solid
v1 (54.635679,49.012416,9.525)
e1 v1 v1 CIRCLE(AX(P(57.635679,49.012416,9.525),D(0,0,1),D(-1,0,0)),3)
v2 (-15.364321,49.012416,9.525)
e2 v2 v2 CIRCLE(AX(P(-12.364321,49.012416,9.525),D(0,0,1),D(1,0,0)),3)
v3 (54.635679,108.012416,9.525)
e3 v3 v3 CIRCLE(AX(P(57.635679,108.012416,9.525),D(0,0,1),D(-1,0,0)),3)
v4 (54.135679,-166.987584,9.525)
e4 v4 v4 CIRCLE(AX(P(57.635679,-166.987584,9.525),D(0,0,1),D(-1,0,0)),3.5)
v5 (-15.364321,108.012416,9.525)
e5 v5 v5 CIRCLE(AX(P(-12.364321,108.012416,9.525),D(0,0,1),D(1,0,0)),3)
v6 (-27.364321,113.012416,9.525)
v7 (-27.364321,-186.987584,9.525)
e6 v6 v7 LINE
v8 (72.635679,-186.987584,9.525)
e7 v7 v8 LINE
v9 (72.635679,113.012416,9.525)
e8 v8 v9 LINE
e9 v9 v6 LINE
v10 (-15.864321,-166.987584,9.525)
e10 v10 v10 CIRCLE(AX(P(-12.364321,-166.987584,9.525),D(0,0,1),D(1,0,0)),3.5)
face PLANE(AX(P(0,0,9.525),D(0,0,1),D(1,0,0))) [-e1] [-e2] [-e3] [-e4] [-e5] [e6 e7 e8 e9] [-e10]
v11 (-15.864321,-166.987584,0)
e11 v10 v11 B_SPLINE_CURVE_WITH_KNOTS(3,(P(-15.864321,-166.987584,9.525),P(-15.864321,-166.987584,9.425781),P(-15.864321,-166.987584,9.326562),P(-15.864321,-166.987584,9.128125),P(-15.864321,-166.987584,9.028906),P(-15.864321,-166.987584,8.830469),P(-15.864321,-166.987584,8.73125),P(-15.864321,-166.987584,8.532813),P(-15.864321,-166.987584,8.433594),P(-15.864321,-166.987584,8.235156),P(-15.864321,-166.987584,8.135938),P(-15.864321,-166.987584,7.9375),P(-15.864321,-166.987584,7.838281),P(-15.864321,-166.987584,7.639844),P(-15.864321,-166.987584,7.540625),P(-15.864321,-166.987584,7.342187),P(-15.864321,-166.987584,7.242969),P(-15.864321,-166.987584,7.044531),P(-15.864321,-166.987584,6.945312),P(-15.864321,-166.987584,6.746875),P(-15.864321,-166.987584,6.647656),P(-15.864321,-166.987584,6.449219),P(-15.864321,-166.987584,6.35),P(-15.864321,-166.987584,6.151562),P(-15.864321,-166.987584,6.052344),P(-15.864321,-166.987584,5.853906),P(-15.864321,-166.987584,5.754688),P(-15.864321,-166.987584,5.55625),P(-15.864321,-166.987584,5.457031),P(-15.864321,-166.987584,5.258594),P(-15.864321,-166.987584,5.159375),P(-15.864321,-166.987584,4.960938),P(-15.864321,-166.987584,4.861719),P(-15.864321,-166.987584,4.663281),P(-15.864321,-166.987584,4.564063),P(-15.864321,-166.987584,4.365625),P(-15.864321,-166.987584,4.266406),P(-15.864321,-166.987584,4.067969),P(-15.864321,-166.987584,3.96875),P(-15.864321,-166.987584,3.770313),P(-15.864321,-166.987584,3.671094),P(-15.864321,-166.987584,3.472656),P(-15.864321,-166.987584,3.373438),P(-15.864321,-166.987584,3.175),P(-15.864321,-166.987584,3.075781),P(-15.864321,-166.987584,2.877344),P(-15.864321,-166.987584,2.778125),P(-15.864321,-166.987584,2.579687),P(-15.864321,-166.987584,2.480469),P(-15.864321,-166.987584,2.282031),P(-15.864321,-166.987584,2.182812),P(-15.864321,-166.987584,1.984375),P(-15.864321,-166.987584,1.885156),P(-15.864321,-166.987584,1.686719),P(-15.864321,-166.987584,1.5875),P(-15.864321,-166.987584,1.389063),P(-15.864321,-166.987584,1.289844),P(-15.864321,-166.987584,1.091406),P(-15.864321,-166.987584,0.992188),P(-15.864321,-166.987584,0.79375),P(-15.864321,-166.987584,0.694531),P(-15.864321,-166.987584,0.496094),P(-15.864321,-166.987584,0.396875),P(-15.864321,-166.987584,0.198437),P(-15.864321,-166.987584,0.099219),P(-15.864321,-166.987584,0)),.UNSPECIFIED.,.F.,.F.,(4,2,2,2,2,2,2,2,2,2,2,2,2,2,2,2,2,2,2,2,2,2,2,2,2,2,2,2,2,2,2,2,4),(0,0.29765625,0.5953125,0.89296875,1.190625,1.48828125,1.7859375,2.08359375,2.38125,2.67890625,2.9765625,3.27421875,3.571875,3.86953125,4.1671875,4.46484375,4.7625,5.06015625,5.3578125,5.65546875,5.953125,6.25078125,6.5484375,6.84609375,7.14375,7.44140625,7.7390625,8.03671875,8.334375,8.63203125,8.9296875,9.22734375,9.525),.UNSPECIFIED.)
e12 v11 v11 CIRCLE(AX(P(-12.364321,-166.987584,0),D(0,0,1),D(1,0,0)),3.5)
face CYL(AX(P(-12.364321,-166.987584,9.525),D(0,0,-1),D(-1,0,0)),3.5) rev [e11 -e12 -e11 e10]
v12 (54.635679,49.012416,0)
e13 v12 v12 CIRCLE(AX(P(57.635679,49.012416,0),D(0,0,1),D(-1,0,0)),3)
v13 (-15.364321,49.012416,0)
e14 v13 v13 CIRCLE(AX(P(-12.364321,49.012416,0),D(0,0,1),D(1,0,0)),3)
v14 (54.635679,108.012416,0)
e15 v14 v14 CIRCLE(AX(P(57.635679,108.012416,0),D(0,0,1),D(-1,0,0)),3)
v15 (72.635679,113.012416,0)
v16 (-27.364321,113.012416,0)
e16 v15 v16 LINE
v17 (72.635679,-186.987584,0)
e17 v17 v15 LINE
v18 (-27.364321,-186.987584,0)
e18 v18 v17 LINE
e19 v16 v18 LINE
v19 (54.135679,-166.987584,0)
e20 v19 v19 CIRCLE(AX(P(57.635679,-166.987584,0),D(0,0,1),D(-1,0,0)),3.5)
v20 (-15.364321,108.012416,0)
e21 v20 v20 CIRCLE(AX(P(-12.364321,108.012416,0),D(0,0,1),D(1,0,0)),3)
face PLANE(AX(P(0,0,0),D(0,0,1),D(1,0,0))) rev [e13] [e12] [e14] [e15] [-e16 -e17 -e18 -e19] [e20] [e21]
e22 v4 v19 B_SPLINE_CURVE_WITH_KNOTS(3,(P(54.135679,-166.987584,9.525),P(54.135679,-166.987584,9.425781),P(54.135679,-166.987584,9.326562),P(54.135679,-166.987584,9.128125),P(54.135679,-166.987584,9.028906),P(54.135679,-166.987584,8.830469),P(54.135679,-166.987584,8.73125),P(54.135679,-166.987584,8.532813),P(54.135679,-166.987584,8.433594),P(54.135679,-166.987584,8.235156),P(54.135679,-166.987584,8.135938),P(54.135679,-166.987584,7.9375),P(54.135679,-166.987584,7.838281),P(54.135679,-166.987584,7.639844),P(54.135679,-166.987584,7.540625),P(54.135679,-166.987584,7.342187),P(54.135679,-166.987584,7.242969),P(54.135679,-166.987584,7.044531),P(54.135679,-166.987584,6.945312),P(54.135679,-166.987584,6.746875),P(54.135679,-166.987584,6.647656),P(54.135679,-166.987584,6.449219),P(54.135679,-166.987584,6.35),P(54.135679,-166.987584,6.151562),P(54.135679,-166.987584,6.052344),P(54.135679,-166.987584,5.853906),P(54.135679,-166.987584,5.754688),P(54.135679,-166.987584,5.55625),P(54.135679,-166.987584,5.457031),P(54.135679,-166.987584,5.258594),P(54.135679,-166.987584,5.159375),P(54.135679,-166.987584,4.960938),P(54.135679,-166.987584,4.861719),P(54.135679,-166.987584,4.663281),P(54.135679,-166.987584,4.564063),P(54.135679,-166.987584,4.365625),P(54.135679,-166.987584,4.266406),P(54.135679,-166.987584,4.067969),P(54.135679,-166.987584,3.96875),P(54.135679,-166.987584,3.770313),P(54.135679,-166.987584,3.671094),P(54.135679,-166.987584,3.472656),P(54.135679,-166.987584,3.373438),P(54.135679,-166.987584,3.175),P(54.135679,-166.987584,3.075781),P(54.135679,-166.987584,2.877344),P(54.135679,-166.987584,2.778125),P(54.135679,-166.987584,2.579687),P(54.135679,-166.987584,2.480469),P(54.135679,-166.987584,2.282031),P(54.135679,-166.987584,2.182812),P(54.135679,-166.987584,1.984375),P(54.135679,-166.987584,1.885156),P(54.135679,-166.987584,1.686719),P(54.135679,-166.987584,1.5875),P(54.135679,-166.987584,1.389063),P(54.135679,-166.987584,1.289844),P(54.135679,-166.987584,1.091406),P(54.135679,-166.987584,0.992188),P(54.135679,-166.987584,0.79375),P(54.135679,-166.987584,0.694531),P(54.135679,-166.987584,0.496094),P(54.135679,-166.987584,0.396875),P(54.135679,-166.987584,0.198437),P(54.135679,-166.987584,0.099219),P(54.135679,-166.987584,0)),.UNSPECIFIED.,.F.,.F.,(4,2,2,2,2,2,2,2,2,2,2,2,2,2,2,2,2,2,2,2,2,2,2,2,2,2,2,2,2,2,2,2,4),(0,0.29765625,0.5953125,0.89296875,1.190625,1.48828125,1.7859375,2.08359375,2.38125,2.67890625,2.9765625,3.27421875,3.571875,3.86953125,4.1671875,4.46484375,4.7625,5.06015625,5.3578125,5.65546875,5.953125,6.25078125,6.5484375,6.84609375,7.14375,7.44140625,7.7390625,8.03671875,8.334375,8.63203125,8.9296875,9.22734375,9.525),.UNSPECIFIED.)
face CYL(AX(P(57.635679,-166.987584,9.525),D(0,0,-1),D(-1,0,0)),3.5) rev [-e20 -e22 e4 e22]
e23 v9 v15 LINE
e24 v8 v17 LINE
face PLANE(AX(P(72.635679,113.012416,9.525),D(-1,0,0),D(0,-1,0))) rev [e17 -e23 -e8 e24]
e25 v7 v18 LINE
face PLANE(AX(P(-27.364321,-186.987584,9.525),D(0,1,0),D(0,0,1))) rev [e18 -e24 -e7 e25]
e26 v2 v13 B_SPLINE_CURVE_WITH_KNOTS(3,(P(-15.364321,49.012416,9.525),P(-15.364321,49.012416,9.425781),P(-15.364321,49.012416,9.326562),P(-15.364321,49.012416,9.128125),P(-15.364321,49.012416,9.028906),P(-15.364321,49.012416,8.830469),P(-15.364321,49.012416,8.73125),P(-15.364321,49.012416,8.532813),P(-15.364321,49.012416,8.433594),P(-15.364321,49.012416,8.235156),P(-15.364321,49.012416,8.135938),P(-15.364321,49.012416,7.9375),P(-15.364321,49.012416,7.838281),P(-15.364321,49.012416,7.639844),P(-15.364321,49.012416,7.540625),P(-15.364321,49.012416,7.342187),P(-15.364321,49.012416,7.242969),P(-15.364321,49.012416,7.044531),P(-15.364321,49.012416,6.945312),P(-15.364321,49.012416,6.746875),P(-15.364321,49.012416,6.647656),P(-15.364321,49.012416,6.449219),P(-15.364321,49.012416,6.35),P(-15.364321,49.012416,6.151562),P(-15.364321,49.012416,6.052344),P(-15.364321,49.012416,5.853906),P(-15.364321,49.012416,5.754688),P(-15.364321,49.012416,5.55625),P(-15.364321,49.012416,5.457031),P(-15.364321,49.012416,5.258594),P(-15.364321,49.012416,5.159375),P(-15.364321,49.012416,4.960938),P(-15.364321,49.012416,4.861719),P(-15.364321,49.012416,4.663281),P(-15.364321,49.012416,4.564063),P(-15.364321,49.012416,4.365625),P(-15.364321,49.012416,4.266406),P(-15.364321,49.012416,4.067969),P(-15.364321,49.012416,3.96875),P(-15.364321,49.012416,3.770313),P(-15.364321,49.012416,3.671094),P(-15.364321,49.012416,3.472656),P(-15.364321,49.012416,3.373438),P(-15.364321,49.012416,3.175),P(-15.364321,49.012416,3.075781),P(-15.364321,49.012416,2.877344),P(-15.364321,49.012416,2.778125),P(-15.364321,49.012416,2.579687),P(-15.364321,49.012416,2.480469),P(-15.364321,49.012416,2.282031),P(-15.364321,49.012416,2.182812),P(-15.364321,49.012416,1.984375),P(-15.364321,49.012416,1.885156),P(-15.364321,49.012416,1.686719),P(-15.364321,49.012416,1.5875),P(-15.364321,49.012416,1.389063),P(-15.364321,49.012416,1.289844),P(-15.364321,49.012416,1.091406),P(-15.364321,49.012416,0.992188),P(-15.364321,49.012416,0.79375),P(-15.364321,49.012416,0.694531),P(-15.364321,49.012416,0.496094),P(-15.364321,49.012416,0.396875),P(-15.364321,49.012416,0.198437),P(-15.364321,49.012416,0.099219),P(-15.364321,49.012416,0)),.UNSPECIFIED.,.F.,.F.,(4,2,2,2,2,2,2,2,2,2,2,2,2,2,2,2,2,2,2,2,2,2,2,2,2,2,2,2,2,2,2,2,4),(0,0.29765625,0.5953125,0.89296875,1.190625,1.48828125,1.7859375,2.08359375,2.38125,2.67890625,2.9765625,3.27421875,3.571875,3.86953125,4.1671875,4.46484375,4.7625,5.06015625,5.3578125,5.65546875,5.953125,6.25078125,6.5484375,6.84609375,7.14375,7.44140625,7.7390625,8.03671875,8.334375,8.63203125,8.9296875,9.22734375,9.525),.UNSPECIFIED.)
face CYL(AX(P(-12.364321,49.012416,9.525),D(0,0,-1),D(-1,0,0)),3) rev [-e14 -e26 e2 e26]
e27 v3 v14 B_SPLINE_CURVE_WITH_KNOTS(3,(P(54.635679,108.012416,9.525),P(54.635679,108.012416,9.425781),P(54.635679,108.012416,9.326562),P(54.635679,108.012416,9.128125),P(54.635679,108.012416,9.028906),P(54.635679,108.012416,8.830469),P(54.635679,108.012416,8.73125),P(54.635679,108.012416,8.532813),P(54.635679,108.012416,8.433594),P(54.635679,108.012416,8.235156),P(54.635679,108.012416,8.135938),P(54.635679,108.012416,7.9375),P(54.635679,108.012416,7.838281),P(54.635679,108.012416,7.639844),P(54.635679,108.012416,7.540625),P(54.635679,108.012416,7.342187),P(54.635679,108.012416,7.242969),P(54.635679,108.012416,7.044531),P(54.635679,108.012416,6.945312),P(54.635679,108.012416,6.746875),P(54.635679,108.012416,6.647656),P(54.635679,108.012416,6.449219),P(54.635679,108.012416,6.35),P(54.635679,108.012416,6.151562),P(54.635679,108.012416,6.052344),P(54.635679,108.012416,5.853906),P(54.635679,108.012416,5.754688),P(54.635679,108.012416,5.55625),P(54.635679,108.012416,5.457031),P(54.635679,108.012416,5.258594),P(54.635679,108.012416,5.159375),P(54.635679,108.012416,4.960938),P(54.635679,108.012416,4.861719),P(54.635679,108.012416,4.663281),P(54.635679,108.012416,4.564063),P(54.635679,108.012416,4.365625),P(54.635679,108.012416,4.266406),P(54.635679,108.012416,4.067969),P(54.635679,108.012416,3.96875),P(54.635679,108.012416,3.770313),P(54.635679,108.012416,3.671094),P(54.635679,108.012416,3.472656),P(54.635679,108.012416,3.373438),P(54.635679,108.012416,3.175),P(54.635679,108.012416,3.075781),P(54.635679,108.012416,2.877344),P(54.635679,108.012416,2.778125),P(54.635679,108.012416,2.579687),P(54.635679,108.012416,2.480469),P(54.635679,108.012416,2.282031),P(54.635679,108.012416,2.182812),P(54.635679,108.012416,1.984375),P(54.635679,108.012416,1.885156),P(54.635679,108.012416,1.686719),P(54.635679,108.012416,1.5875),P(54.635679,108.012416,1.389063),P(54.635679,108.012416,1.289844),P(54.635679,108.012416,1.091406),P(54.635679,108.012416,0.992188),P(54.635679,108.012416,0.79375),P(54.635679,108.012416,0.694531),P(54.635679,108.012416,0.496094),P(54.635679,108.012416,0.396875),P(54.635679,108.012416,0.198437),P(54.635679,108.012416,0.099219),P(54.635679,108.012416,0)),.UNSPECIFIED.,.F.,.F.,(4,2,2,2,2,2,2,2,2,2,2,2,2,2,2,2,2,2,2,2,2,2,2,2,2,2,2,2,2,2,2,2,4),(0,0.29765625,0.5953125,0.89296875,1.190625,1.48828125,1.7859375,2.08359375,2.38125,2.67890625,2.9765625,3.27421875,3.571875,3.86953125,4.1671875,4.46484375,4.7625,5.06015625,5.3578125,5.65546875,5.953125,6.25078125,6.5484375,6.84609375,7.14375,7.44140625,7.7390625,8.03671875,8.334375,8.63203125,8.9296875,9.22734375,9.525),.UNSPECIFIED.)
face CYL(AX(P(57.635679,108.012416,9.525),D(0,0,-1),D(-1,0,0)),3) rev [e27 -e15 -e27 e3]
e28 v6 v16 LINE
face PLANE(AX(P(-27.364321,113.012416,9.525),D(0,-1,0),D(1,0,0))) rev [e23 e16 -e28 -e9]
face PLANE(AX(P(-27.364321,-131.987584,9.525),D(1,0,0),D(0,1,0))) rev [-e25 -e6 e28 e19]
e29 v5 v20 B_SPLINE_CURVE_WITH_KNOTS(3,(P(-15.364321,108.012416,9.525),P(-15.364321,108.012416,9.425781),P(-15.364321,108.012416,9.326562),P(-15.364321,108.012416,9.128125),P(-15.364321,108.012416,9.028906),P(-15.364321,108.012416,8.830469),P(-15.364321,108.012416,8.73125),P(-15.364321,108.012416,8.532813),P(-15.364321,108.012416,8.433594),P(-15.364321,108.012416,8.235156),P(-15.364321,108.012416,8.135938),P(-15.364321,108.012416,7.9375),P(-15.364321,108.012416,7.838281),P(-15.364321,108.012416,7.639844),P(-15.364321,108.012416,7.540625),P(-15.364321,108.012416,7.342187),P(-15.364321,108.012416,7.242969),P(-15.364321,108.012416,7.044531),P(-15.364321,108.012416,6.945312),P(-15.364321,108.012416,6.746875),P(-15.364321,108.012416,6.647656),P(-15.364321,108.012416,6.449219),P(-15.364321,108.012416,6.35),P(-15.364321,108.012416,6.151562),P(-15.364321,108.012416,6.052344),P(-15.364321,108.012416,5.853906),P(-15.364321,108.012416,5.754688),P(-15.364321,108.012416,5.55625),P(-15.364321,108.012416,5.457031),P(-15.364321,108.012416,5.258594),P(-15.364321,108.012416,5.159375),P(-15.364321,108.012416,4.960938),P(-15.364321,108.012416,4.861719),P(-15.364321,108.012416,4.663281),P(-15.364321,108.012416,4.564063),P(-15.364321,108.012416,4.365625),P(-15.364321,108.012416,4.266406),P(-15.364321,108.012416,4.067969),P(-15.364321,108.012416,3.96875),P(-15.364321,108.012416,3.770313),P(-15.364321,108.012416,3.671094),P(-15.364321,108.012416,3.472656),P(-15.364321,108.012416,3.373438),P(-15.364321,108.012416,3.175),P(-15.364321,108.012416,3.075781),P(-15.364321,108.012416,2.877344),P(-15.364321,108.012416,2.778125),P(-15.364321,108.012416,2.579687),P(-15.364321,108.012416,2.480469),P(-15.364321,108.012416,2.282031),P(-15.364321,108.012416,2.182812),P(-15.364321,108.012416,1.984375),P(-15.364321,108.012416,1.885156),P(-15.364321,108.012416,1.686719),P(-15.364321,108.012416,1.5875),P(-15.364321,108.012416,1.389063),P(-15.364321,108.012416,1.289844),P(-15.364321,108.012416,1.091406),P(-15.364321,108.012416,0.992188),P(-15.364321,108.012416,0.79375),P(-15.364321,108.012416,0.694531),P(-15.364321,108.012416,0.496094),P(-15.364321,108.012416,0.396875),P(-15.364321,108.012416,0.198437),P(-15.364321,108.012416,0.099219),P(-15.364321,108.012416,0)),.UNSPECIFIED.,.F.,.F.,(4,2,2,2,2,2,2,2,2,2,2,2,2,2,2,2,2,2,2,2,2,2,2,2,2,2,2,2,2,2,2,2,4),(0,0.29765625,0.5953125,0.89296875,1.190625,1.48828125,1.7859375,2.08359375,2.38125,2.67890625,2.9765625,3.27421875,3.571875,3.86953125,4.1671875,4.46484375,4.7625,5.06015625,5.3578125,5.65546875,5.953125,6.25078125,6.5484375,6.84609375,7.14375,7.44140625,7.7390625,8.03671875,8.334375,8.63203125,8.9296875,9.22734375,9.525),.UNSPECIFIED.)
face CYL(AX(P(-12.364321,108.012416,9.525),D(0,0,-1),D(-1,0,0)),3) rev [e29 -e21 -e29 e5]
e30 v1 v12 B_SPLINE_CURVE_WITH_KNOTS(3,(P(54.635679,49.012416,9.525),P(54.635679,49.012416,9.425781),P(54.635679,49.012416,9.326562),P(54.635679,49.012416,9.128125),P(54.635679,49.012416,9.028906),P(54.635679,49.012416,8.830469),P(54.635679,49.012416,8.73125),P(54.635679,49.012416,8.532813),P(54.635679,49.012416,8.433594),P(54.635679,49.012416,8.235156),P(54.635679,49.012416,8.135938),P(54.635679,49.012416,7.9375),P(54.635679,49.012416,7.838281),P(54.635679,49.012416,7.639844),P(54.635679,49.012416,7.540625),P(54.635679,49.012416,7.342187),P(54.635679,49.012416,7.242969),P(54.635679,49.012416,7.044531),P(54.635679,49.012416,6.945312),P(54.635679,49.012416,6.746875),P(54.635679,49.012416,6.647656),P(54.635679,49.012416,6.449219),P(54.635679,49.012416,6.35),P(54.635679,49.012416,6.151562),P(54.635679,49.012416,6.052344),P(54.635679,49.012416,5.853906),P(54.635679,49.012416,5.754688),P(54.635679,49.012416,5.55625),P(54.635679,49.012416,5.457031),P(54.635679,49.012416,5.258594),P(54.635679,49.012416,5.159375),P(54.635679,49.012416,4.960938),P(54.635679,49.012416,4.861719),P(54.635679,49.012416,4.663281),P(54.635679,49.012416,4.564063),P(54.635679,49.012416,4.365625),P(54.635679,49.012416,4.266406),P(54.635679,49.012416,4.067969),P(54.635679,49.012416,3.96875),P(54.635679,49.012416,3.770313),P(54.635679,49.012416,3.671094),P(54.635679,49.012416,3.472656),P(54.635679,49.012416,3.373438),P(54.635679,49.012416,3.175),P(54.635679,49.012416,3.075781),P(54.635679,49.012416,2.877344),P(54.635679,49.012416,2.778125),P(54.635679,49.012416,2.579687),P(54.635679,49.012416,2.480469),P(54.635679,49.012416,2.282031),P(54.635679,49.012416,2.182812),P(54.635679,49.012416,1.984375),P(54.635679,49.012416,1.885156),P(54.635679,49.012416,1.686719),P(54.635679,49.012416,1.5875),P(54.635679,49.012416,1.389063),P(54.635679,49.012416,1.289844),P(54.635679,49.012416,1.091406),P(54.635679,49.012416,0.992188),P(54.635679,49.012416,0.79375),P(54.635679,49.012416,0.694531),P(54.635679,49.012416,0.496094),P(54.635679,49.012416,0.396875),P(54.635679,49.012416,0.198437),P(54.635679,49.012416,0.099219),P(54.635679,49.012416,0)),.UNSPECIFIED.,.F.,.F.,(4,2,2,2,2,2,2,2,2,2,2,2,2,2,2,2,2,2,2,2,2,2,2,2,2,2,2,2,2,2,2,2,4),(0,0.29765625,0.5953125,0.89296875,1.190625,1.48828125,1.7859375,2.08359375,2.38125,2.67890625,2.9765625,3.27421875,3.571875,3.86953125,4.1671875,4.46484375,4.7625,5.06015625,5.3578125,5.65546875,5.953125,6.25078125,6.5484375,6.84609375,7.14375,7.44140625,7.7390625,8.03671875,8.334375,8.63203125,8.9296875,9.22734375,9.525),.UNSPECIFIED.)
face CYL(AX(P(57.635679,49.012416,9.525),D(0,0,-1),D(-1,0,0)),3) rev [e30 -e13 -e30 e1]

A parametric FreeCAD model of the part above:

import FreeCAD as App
import Part
import Sketcher

V = App.Vector


def add_polygon(sketch, points):
    """Adds a closed chain of lines whose ends are joined by coincident constraints."""
    first, n = sketch.GeometryCount, len(points)
    for a, b in zip(points, points[1:] + points[:1]):
        sketch.addGeometry(Part.LineSegment(App.Vector(*a, 0), App.Vector(*b, 0)), False)
    for i in range(n):
        sketch.addConstraint(Sketcher.Constraint("Coincident", first + i, 2, first + (i + 1) % n, 1))

doc = App.newDocument("Part")
params = doc.addObject("Spreadsheet::Sheet", "Params")
for row, (alias, value) in enumerate([
    ("sketch1_diameter", "7 mm"),
    ("sketch1_diameter2", "6 mm"),
    ("sketch1_width", "100 mm"),
    ("sketch1_height", "300 mm"),
    ("pad1_length", "9.525 mm"),
], start=1):
    params.set(f"A{row}", alias)
    params.set(f"B{row}", "=" + value)
    params.setAlias(f"B{row}", alias)

body = doc.addObject("PartDesign::Body", "Body")

# Sketch on XY plane
sketch1 = body.newObject("Sketcher::SketchObject", "Sketch")
sketch1.AttachmentSupport = (doc.getObject("XY_Plane"), [""])
sketch1.MapMode = "FlatFace"
add_polygon(sketch1, [(72.635679, 113.012416), (-27.364321, 113.012416), (-27.364321, -186.987584), (72.635679, -186.987584)])  # lines 0-3
sketch1.addGeometry(Part.Circle(V(57.635679, -166.987584, 0), V(0, 0, 1), 3.5), False)  # 4
sketch1.addGeometry(Part.Circle(V(-12.364321, -166.987584, 0), V(0, 0, 1), 3.5), False)  # 5
sketch1.addGeometry(Part.Circle(V(57.635679, 49.012416, 0), V(0, 0, 1), 3), False)  # 6
sketch1.addGeometry(Part.Circle(V(57.635679, 108.012416, 0), V(0, 0, 1), 3), False)  # 7
sketch1.addGeometry(Part.Circle(V(-12.364321, 49.012416, 0), V(0, 0, 1), 3), False)  # 8
sketch1.addGeometry(Part.Circle(V(-12.364321, 108.012416, 0), V(0, 0, 1), 3), False)  # 9
sketch1.addConstraint([
    Sketcher.Constraint("Horizontal", 0),
    Sketcher.Constraint("Vertical", 1),
    Sketcher.Constraint("Horizontal", 2),
    Sketcher.Constraint("Vertical", 3),
    Sketcher.Constraint("Equal", 4, 5),
    Sketcher.Constraint("Equal", 6, 7),
    Sketcher.Constraint("Equal", 7, 8),
    Sketcher.Constraint("Equal", 8, 9),
    Sketcher.Constraint("Horizontal", 4, 3, 5, 3),
    Sketcher.Constraint("Horizontal", 6, 3, 8, 3),
    Sketcher.Constraint("Horizontal", 7, 3, 9, 3),
    Sketcher.Constraint("Vertical", 4, 3, 6, 3),
    Sketcher.Constraint("Vertical", 6, 3, 7, 3),
    Sketcher.Constraint("Vertical", 5, 3, 8, 3),
    Sketcher.Constraint("Vertical", 8, 3, 9, 3),
    Sketcher.Constraint("Diameter", 4, 7.0),
    Sketcher.Constraint("Diameter", 6, 6.0),
    Sketcher.Constraint("DistanceX", 0, 2, 0, 1, 100.0),
    Sketcher.Constraint("DistanceY", 1, 2, 1, 1, 300.0),
    Sketcher.Constraint("DistanceX", 5, 3, 4, 3, 70.0),
    Sketcher.Constraint("DistanceY", 4, 3, 6, 3, 216.0),
    Sketcher.Constraint("DistanceY", 6, 3, 7, 3, 59.0),
    Sketcher.Constraint("DistanceX", 0, 2, 9, 3, 15.0),
    Sketcher.Constraint("DistanceY", 9, 3, 0, 2, 5.0),
    Sketcher.Constraint("DistanceX", -1, 1, 4, 3, 57.635679),
    Sketcher.Constraint("DistanceY", 4, 3, -1, 1, 166.987584),
])
sketch1.setExpression("Constraints[19]", "Params.sketch1_diameter")
sketch1.setExpression("Constraints[20]", "Params.sketch1_diameter2")
sketch1.setExpression("Constraints[21]", "Params.sketch1_width")
sketch1.setExpression("Constraints[22]", "Params.sketch1_height")
pad1 = body.newObject("PartDesign::Pad", "Pad")
pad1.Profile = sketch1
pad1.setExpression("Length", "Params.pad1_length")

doc.recompute()
